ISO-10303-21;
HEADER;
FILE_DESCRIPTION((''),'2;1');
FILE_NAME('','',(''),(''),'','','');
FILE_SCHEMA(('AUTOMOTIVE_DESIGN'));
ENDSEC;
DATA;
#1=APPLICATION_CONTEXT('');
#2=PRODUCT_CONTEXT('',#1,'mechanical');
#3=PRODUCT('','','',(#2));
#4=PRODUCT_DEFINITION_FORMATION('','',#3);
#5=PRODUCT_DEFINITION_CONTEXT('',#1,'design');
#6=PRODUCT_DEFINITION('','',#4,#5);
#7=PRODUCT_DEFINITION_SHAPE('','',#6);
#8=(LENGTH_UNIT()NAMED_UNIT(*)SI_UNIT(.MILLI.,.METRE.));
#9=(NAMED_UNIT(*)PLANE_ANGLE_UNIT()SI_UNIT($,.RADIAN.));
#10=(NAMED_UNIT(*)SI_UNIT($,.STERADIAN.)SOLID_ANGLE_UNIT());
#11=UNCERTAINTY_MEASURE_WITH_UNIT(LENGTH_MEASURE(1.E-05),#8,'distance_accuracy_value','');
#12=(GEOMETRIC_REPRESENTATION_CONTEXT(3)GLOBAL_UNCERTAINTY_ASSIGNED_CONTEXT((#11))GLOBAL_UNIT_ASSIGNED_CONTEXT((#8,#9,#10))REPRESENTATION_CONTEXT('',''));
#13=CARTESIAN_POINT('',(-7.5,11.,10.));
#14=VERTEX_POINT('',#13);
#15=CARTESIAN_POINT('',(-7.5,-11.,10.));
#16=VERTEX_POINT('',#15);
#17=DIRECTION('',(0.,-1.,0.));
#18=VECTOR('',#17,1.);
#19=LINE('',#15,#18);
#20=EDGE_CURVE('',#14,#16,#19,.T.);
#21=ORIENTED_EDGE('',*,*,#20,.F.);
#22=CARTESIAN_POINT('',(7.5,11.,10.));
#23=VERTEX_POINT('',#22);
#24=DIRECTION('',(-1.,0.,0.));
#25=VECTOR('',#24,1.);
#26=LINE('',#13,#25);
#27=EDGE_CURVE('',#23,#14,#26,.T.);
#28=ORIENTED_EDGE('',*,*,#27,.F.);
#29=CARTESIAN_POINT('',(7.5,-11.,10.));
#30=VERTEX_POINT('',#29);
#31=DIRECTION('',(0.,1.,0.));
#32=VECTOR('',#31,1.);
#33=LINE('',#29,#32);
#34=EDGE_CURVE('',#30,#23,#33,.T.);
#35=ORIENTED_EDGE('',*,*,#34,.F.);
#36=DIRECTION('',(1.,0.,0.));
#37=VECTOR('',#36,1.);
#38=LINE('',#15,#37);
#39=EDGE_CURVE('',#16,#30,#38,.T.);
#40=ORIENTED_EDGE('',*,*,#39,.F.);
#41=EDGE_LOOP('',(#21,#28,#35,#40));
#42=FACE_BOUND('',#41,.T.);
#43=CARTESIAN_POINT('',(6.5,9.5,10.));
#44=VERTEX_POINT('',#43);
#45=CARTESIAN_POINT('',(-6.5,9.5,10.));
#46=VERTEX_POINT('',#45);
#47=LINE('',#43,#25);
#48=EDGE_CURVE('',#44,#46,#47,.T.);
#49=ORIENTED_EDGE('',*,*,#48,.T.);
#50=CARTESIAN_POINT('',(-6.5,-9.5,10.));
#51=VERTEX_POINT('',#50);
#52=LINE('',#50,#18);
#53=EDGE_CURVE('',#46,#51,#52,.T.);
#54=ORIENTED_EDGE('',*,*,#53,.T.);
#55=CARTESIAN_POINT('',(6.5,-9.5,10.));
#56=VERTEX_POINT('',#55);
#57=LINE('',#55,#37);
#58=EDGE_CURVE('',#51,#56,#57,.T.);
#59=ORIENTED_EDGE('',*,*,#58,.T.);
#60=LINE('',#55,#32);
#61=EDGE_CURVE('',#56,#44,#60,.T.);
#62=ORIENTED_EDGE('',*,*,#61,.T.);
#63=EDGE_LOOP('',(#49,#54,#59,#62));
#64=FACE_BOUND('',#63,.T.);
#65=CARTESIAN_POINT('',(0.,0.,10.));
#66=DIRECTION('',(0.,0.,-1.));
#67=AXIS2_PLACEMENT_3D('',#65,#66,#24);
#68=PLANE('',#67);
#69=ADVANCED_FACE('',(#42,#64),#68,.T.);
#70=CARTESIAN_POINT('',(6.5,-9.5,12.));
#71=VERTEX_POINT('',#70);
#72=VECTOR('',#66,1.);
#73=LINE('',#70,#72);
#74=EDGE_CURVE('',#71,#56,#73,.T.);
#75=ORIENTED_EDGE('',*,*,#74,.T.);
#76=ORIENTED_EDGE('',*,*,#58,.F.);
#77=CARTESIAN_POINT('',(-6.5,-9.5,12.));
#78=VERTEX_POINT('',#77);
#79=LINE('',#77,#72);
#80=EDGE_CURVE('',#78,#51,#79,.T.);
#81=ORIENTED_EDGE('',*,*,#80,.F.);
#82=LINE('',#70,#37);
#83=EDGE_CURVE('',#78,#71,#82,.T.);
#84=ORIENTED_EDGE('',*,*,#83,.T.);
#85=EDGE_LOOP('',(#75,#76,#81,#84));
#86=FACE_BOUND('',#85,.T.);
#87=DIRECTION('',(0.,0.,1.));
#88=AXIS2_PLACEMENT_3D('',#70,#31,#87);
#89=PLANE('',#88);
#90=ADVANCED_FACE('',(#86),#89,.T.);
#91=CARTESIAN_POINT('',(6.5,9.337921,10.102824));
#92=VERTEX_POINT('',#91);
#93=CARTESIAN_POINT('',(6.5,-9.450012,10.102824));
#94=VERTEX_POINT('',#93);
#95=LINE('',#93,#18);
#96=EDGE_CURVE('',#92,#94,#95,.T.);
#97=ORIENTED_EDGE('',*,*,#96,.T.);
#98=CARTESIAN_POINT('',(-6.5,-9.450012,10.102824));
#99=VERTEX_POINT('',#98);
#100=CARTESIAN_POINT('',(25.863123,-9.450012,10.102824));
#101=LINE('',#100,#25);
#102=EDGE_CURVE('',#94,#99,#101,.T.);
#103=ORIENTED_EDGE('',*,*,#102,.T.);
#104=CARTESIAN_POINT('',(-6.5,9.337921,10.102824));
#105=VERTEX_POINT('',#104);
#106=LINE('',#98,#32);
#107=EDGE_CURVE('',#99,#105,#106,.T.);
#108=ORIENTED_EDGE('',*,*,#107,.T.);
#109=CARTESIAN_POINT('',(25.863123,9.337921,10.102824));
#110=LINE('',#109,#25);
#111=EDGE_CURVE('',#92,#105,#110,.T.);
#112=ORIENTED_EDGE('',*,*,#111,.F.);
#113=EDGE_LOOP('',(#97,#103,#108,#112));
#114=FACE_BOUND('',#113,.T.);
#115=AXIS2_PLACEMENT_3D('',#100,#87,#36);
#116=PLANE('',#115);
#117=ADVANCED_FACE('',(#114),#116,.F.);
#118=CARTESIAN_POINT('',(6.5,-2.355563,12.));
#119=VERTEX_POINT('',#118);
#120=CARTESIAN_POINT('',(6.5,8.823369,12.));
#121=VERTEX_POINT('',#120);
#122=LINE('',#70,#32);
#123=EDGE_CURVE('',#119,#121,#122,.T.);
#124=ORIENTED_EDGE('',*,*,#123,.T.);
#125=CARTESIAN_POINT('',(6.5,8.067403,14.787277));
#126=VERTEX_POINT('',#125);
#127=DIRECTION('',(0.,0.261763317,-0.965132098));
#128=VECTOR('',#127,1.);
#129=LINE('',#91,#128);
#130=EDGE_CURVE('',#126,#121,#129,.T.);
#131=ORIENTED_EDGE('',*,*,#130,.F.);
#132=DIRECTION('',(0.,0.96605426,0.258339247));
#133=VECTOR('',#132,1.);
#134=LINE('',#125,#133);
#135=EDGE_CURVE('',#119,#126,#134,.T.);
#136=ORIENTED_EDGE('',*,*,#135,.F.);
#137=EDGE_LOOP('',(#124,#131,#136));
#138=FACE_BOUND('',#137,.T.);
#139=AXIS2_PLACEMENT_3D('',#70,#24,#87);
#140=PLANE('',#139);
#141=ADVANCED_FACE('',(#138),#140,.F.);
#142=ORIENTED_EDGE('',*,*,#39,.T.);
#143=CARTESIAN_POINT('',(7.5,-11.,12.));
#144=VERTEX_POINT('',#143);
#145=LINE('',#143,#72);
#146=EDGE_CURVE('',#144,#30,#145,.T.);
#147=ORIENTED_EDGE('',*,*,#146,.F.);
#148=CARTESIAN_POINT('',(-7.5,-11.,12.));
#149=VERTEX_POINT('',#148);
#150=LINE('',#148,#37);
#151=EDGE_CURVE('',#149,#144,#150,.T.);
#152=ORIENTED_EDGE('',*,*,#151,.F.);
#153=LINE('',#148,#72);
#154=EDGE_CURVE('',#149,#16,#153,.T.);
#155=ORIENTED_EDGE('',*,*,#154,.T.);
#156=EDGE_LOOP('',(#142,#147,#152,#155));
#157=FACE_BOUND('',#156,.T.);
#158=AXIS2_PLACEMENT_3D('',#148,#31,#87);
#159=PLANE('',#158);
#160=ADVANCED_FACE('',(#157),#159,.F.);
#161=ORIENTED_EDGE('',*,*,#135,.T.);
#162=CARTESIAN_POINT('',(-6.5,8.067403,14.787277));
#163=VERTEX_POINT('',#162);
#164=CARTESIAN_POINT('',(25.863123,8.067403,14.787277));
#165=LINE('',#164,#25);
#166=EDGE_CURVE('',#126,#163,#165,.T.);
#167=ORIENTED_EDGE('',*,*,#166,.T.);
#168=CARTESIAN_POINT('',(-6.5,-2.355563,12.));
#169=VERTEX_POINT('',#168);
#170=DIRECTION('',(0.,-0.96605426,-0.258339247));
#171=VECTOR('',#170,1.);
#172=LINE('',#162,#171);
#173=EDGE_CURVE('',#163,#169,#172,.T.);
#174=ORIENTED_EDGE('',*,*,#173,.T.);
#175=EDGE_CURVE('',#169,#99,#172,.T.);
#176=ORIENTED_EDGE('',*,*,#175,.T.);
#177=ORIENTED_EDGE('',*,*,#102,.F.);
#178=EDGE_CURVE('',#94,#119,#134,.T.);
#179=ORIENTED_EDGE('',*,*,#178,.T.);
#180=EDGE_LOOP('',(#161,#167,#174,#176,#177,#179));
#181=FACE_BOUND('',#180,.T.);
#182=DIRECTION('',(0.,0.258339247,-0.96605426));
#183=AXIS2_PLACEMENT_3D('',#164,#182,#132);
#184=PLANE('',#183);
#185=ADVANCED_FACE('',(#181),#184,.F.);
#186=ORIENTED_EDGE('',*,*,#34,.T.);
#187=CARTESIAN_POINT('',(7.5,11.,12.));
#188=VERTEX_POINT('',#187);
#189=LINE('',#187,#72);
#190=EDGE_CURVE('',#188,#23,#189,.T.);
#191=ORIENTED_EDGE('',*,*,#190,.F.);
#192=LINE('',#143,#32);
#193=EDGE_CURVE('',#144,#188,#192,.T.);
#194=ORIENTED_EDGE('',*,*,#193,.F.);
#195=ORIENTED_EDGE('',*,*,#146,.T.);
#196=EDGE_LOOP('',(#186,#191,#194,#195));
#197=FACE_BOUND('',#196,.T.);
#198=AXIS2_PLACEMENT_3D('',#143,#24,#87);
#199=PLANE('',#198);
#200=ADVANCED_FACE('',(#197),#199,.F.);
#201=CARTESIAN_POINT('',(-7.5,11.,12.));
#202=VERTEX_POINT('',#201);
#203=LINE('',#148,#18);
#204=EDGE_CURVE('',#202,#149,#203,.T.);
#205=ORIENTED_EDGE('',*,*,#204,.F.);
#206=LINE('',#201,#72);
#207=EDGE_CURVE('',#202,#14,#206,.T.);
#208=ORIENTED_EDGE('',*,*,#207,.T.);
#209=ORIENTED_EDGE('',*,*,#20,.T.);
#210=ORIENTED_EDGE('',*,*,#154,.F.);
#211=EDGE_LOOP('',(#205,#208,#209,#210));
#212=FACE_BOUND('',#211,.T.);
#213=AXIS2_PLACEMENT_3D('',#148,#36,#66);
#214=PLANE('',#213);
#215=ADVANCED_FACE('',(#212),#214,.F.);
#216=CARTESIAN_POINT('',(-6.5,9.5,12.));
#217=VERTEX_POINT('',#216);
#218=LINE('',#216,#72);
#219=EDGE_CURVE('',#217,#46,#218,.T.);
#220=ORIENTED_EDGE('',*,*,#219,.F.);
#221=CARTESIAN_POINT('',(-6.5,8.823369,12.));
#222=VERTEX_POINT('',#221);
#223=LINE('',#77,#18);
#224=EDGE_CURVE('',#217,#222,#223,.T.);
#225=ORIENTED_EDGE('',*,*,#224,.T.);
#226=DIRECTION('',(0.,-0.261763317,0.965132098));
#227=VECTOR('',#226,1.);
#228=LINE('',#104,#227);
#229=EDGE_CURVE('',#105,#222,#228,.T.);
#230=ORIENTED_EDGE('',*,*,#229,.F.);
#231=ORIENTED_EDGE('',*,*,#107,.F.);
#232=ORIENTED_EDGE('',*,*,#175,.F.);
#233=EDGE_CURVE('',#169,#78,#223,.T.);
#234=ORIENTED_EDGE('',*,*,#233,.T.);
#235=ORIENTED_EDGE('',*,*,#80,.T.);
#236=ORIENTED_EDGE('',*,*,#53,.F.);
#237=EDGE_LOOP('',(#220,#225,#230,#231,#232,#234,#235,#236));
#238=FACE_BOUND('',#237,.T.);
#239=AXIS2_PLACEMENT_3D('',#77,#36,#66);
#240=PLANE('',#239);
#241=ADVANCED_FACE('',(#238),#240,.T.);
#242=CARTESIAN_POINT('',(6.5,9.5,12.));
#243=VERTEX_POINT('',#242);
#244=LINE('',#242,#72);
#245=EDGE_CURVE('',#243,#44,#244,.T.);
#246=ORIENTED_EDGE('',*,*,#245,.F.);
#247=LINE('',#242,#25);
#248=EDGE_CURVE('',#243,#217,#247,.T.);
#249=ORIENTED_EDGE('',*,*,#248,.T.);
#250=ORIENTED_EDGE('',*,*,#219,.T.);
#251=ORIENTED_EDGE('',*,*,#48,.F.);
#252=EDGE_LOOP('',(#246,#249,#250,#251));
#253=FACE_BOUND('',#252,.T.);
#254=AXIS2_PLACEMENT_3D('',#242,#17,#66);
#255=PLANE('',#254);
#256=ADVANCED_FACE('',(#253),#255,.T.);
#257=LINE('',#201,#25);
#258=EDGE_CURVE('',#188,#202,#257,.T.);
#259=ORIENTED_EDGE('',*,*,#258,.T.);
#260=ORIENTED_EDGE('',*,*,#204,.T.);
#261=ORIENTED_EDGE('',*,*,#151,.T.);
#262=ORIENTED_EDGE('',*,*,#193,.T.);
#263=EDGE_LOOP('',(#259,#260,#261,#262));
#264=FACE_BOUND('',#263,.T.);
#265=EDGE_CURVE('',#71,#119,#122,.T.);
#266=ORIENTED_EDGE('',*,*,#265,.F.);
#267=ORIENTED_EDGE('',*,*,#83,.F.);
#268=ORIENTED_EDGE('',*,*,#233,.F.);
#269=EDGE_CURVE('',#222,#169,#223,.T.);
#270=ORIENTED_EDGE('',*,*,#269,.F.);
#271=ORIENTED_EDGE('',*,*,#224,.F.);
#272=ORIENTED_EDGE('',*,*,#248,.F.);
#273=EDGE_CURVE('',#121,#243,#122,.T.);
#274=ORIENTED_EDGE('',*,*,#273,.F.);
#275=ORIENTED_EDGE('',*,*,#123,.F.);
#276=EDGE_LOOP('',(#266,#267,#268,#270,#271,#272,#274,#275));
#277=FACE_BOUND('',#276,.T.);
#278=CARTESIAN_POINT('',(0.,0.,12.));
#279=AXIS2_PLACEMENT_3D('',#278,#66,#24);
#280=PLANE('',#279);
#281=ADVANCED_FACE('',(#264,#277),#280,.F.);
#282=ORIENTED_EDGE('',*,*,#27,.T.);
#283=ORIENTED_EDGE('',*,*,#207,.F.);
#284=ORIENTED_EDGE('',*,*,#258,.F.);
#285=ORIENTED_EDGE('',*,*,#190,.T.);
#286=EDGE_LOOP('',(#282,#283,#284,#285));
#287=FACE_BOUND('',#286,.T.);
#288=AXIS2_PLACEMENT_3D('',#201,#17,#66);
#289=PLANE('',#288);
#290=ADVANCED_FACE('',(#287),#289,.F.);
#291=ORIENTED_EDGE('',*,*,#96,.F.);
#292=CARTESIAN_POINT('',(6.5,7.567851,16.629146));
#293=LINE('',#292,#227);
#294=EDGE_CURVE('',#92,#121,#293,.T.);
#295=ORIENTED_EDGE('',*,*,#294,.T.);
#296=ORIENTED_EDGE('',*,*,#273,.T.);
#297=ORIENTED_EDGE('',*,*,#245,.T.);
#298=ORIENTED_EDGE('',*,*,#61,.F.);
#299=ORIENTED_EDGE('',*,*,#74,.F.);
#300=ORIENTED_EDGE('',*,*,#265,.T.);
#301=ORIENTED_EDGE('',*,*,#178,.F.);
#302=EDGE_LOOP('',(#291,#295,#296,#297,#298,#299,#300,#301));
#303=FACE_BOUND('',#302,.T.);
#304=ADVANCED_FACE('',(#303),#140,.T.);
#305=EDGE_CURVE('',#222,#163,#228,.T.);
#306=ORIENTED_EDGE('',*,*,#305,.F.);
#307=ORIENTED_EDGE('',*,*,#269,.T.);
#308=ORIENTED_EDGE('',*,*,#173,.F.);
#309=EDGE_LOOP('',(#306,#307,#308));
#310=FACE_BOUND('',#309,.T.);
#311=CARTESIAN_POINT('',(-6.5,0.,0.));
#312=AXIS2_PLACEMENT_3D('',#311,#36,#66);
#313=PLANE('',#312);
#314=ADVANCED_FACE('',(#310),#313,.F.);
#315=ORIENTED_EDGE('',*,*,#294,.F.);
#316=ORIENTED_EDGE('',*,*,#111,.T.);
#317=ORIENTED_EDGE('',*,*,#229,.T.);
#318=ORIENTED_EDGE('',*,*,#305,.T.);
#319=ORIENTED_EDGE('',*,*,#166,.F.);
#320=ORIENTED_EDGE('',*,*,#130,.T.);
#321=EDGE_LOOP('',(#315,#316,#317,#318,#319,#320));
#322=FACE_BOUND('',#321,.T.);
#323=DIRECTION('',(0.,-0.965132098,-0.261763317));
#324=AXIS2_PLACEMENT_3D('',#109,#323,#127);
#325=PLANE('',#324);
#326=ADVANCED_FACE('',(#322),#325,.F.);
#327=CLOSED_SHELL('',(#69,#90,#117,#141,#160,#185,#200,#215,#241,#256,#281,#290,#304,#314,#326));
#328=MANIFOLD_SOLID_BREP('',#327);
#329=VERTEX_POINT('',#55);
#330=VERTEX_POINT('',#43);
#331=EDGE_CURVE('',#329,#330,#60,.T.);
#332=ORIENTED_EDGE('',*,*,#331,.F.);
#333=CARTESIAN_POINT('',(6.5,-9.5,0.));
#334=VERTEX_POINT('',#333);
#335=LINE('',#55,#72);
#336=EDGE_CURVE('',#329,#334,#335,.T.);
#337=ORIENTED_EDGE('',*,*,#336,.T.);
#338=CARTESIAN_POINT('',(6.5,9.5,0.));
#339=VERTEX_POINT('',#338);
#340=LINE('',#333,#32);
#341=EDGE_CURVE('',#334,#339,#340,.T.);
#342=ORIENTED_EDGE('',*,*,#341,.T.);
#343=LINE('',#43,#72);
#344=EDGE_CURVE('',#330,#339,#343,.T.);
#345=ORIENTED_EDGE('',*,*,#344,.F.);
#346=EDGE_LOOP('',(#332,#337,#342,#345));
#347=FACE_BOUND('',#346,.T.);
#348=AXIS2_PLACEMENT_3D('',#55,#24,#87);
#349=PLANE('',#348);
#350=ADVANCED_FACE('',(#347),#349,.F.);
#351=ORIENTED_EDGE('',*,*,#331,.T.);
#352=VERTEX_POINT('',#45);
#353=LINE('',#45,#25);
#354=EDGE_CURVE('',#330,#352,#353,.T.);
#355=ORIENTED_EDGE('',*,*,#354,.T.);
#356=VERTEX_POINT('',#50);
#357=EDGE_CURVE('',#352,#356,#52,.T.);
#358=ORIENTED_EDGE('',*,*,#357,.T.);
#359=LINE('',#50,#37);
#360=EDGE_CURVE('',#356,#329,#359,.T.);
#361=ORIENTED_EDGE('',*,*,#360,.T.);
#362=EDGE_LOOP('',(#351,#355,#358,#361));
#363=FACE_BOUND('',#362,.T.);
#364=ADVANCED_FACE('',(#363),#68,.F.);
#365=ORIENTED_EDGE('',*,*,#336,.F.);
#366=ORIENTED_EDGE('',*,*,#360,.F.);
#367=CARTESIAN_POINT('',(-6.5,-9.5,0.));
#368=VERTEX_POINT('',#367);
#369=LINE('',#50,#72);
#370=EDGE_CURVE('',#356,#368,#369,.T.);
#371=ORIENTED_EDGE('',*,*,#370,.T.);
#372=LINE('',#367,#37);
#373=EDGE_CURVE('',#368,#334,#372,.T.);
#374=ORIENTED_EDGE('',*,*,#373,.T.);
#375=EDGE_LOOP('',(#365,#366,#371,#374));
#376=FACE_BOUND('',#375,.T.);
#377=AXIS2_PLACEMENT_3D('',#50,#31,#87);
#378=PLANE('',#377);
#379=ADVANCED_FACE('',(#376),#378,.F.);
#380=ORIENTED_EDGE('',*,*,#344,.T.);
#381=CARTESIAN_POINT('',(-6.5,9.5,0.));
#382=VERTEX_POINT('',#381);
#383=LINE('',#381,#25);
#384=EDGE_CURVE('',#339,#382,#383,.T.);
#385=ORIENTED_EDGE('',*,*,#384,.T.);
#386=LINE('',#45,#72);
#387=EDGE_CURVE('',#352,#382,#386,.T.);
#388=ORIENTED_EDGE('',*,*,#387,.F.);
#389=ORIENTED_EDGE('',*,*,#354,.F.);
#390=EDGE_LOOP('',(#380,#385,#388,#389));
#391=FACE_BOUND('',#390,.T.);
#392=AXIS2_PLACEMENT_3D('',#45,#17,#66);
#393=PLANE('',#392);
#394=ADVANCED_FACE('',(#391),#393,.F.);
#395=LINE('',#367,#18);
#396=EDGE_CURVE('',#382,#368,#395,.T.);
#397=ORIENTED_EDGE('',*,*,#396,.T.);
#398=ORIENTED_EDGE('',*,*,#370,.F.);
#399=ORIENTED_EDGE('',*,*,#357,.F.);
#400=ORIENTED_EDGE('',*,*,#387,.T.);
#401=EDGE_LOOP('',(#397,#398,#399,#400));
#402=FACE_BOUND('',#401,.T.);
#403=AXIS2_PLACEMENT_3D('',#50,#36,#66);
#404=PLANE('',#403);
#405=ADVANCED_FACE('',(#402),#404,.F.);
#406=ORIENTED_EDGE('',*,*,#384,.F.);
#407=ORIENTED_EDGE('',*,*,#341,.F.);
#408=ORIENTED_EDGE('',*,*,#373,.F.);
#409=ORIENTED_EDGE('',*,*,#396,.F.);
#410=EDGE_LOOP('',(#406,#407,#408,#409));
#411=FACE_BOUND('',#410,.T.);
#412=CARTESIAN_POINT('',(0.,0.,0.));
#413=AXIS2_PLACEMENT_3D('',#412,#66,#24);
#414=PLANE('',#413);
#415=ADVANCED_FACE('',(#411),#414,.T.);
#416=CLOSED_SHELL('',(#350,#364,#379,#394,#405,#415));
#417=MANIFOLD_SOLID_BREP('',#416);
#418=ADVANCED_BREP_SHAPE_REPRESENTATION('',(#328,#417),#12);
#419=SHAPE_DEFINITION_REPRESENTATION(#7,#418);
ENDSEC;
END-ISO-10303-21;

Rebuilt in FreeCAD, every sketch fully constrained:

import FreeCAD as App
import Part
import Sketcher
from FreeCAD import Vector
Q = App.Units.Quantity

doc = App.newDocument("Part")
body = doc.addObject("PartDesign::Body", "Body")

sketch1 = doc.addObject("Sketcher::SketchObject", "Sketch")
body.addObject(sketch1)
sketch1.AttachmentSupport = (doc.XY_Plane, [""])
sketch1.MapMode = "FlatFace"
sketch1.addGeometry(Part.LineSegment(Vector(-6, 10, 0), Vector(-6, -10, 0)), False)
sketch1.addGeometry(Part.LineSegment(Vector(-6, -10, 0), Vector(6, -10, 0)), False)
sketch1.addGeometry(Part.LineSegment(Vector(6, -10, 0), Vector(6, 10, 0)), False)
sketch1.addGeometry(Part.LineSegment(Vector(6, 10, 0), Vector(-6, 10, 0)), False)
sketch1.addConstraint(Sketcher.Constraint("Coincident", 0, 2, 1, 1))
sketch1.addConstraint(Sketcher.Constraint("Coincident", 1, 2, 2, 1))
sketch1.addConstraint(Sketcher.Constraint("Coincident", 2, 2, 3, 1))
sketch1.addConstraint(Sketcher.Constraint("Coincident", 3, 2, 0, 1))
sketch1.addConstraint(Sketcher.Constraint("Vertical", 0))
sketch1.addConstraint(Sketcher.Constraint("Horizontal", 1))
sketch1.addConstraint(Sketcher.Constraint("Vertical", 2))
sketch1.addConstraint(Sketcher.Constraint("Horizontal", 3))
sketch1.addConstraint(Sketcher.Constraint("Symmetric", 0, 2, 2, 2, -1, 1))
sketch1.addConstraint(Sketcher.Constraint("DistanceX", 1, 1, 1, 2, Q("13 mm")))
sketch1.addConstraint(Sketcher.Constraint("DistanceY", 0, 2, 0, 1, Q("19 mm")))
pad1 = doc.addObject("PartDesign::Pad", "Pad")
body.addObject(pad1)
pad1.Profile = sketch1
pad1.Length = 10
body2 = doc.addObject("PartDesign::Body", "Body001")

sketch2 = doc.addObject("Sketcher::SketchObject", "Sketch001")
body2.addObject(sketch2)
sketch2.AttachmentSupport = (doc.getObject("XY_Plane001"), [""])
sketch2.MapMode = "FlatFace"
sketch2.AttachmentOffset = App.Placement(Vector(0, 0, 10), App.Rotation())
sketch2.addGeometry(Part.LineSegment(Vector(-8, 11, 0), Vector(-8, -11, 0)), False)
sketch2.addGeometry(Part.LineSegment(Vector(-8, -11, 0), Vector(8, -11, 0)), False)
sketch2.addGeometry(Part.LineSegment(Vector(8, -11, 0), Vector(8, 11, 0)), False)
sketch2.addGeometry(Part.LineSegment(Vector(8, 11, 0), Vector(-8, 11, 0)), False)
sketch2.addGeometry(Part.LineSegment(Vector(6, -10, 0), Vector(-6, -10, 0)), False)
sketch2.addGeometry(Part.LineSegment(Vector(-6, -10, 0), Vector(-6, 10, 0)), False)
sketch2.addGeometry(Part.LineSegment(Vector(-6, 10, 0), Vector(6, 10, 0)), False)
sketch2.addGeometry(Part.LineSegment(Vector(6, 10, 0), Vector(6, -10, 0)), False)
sketch2.addConstraint(Sketcher.Constraint("Coincident", 0, 2, 1, 1))
sketch2.addConstraint(Sketcher.Constraint("Coincident", 1, 2, 2, 1))
sketch2.addConstraint(Sketcher.Constraint("Coincident", 2, 2, 3, 1))
sketch2.addConstraint(Sketcher.Constraint("Coincident", 3, 2, 0, 1))
sketch2.addConstraint(Sketcher.Constraint("Coincident", 4, 2, 5, 1))
sketch2.addConstraint(Sketcher.Constraint("Coincident", 5, 2, 6, 1))
sketch2.addConstraint(Sketcher.Constraint("Coincident", 6, 2, 7, 1))
sketch2.addConstraint(Sketcher.Constraint("Coincident", 7, 2, 4, 1))
sketch2.addConstraint(Sketcher.Constraint("Vertical", 0))
sketch2.addConstraint(Sketcher.Constraint("Horizontal", 1))
sketch2.addConstraint(Sketcher.Constraint("Vertical", 2))
sketch2.addConstraint(Sketcher.Constraint("Horizontal", 3))
sketch2.addConstraint(Sketcher.Constraint("Horizontal", 4))
sketch2.addConstraint(Sketcher.Constraint("Vertical", 5))
sketch2.addConstraint(Sketcher.Constraint("Horizontal", 6))
sketch2.addConstraint(Sketcher.Constraint("Vertical", 7))
sketch2.addConstraint(Sketcher.Constraint("Symmetric", 0, 2, 2, 2, -1, 1))
sketch2.addConstraint(Sketcher.Constraint("Symmetric", 4, 2, 6, 2, -1, 1))
sketch2.addConstraint(Sketcher.Constraint("DistanceX", 1, 1, 1, 2, Q("15 mm")))
sketch2.addConstraint(Sketcher.Constraint("DistanceX", 4, 2, 4, 1, Q("13 mm")))
sketch2.addConstraint(Sketcher.Constraint("DistanceY", 0, 2, 0, 1, Q("22 mm")))
sketch2.addConstraint(Sketcher.Constraint("DistanceY", 5, 1, 5, 2, Q("19 mm")))
pad2 = doc.addObject("PartDesign::Pad", "Pad001")
body2.addObject(pad2)
pad2.Profile = sketch2
pad2.Length = 2

sketch3 = doc.addObject("Sketcher::SketchObject", "Sketch002")
body2.addObject(sketch3)
sketch3.AttachmentSupport = (doc.getObject("YZ_Plane001"), [""])
sketch3.MapMode = "FlatFace"
sketch3.AttachmentOffset = App.Placement(Vector(0, 0, -6.5), App.Rotation())
sketch3.addGeometry(Part.LineSegment(Vector(9.3, 10.1, 0), Vector(8.1, 14.8, 0)), False)
sketch3.addGeometry(Part.LineSegment(Vector(8.1, 14.8, 0), Vector(-9.5, 10.1, 0)), False)
sketch3.addGeometry(Part.LineSegment(Vector(-9.5, 10.1, 0), Vector(9.3, 10.1, 0)), False)
sketch3.addConstraint(Sketcher.Constraint("Coincident", 0, 2, 1, 1))
sketch3.addConstraint(Sketcher.Constraint("Coincident", 1, 2, 2, 1))
sketch3.addConstraint(Sketcher.Constraint("Coincident", 2, 2, 0, 1))
sketch3.addConstraint(Sketcher.Constraint("Horizontal", 2))
sketch3.addConstraint(Sketcher.Constraint("Distance", 0, Q("4.853691 mm")))
sketch3.addConstraint(Sketcher.Constraint("Distance", 1, Q("18.132952 mm")))
sketch3.addConstraint(Sketcher.Constraint("DistanceX", 2, 1, 2, 2, Q("18.787934 mm")))
sketch3.addConstraint(Sketcher.Constraint("DistanceX", -1, 1, 2, 2, Q("9.337921 mm")))
sketch3.addConstraint(Sketcher.Constraint("DistanceY", -1, 1, 0, 2, Q("14.787277 mm")))
pad3 = doc.addObject("PartDesign::Pad", "Pad002")
body2.addObject(pad3)
pad3.Profile = sketch3
pad3.Length = 13

doc.recompute()
